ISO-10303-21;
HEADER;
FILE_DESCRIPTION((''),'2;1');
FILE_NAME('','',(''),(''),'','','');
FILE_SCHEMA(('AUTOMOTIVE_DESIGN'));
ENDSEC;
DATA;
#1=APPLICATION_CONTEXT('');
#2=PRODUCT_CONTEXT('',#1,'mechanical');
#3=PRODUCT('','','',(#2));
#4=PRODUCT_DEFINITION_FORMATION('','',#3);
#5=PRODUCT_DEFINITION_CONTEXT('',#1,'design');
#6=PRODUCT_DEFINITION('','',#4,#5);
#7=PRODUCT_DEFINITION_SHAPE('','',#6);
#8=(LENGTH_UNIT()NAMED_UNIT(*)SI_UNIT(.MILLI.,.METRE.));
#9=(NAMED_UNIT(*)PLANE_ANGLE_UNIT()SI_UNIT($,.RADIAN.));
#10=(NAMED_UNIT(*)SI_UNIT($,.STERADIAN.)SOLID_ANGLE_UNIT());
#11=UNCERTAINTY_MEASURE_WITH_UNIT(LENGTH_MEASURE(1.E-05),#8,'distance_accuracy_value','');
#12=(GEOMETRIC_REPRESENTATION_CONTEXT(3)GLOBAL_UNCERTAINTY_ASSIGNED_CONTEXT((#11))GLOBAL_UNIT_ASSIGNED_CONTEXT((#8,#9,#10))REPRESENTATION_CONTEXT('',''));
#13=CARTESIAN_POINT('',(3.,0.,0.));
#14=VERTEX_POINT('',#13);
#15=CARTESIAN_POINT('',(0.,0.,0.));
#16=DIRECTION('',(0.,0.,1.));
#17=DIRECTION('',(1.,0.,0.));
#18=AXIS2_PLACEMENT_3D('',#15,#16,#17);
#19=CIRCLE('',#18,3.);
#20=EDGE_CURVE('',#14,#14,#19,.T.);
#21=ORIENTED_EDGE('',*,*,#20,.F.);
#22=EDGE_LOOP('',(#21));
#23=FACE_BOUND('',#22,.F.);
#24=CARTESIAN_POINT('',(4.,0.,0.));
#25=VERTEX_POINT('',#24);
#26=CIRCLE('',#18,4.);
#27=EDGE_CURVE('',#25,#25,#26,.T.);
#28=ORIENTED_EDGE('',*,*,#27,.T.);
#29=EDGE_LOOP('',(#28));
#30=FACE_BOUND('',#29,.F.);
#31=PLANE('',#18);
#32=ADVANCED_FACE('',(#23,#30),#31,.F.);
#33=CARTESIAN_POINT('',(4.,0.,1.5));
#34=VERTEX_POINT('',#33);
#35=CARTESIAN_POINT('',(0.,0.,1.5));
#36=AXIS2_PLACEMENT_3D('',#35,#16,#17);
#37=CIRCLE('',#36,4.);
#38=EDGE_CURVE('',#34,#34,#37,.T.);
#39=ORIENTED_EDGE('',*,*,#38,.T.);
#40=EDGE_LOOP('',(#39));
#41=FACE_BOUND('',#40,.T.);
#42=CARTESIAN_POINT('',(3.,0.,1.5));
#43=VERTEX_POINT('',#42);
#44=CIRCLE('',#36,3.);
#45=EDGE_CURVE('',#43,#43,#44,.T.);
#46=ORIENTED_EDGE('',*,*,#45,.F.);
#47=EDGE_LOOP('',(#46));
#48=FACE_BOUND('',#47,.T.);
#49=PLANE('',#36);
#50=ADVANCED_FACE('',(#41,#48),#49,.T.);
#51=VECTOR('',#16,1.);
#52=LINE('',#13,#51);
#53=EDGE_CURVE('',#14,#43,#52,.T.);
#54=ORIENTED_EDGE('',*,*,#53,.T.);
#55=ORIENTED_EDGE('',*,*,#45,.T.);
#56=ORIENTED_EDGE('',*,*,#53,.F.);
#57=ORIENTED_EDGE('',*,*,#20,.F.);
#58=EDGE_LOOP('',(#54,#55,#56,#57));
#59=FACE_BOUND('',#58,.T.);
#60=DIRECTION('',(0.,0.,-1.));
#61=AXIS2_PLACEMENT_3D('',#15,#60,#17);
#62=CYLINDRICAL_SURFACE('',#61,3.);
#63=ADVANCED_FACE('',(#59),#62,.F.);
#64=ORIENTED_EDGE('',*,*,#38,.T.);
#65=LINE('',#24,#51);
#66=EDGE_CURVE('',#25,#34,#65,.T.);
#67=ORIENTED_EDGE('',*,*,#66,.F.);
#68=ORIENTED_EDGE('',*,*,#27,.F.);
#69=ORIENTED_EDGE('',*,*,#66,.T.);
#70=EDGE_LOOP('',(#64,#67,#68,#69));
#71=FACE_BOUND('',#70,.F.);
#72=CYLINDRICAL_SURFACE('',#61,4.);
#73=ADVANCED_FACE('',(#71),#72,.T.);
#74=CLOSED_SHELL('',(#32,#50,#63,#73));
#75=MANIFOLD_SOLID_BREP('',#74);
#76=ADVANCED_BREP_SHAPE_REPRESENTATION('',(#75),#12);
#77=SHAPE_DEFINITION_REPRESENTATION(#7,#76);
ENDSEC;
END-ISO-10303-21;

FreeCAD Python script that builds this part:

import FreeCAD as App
import Part
import Sketcher
Q = App.Units.Quantity

doc = App.newDocument("Part")
body = doc.addObject("PartDesign::Body", "Body")

sketch1 = doc.addObject("Sketcher::SketchObject", "Sketch")
body.addObject(sketch1)
sketch1.AttachmentSupport = (doc.XY_Plane, [""])
sketch1.MapMode = "FlatFace"
sketch1.addGeometry(Part.Circle(App.Vector(0, 0, 0), App.Vector(0, 0, 1), 4), False)
sketch1.addGeometry(Part.Circle(App.Vector(0, 0, 0), App.Vector(0, 0, 1), 3), False)
sketch1.addConstraint(Sketcher.Constraint("Coincident", 0, 3, -1, 1))
sketch1.addConstraint(Sketcher.Constraint("Coincident", 1, 3, -1, 1))
sketch1.addConstraint(Sketcher.Constraint("Diameter", 0, Q("8 mm")))
sketch1.addConstraint(Sketcher.Constraint("Diameter", 1, Q("6 mm")))
pad1 = doc.addObject("PartDesign::Pad", "Pad")
body.addObject(pad1)
pad1.Profile = sketch1
pad1.Length = 1.5

doc.recompute()
